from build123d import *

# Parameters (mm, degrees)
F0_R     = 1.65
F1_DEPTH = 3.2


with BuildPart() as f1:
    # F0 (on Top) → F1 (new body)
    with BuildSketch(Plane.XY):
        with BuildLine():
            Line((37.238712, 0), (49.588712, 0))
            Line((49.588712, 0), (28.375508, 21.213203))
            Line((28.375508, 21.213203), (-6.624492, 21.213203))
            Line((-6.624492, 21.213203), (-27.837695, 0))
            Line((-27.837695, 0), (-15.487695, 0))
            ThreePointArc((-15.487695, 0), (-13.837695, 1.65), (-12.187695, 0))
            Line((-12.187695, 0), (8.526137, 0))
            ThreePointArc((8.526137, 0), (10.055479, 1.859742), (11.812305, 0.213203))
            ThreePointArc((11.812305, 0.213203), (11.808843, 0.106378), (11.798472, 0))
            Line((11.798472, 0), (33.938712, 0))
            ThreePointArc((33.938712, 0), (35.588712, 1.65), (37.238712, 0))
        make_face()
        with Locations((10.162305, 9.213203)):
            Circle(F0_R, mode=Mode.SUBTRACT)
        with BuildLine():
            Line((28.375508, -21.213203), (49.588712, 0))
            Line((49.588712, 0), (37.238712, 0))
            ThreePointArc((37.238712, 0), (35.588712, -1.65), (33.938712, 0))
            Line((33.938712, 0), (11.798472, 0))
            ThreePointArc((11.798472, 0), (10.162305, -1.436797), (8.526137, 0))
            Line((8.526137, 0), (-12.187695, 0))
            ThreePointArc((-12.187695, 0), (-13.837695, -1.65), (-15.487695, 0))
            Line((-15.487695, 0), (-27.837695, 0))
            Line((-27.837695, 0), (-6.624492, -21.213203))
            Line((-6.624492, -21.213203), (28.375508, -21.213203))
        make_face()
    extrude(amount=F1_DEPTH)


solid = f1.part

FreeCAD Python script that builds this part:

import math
import FreeCAD as App
import Part
import Sketcher
from FreeCAD import Vector


def add_polygon(sketch, points):
    """Adds a closed chain of lines whose ends are joined by coincident constraints."""
    first, n = sketch.GeometryCount, len(points)
    for a, b in zip(points, points[1:] + points[:1]):
        sketch.addGeometry(Part.LineSegment(App.Vector(*a, 0), App.Vector(*b, 0)), False)
    for i in range(n):
        sketch.addConstraint(Sketcher.Constraint("Coincident", first + i, 2, first + (i + 1) % n, 1))

doc = App.newDocument("Part")
body = doc.addObject("PartDesign::Body", "Body")

sketch1 = doc.addObject("Sketcher::SketchObject", "Sketch")
body.addObject(sketch1)
sketch1.AttachmentSupport = (doc.XY_Plane, [""])
sketch1.MapMode = "FlatFace"
add_polygon(sketch1, [(49.59, 0), (28.38, 21.21), (-6.62, 21.21), (-27.84, 0), (-6.62, -21.21), (28.38, -21.21)])
sketch1.addGeometry(Part.Circle(Vector(35.59, 0, 0), Vector(0, 0, 1), 1.65), False)
sketch1.addGeometry(Part.ArcOfCircle(Part.Circle(Vector(10.16, 0.21, 0), Vector(0, 0, 1), 1.65), math.radians(-7.42), math.radians(0)), False)
sketch1.addGeometry(Part.ArcOfCircle(Part.Circle(Vector(10.16, 0.21, 0), Vector(0, 0, 1), 1.65), math.radians(-173), math.radians(-7)), False)
sketch1.addGeometry(Part.ArcOfCircle(Part.Circle(Vector(10.16, 0.21, 0), Vector(0, 0, 1), 1.65), math.radians(0), math.radians(187)), False)
sketch1.addGeometry(Part.Circle(Vector(-13.84, 0, 0), Vector(0, 0, 1), 1.65), False)
sketch1.addGeometry(Part.Circle(Vector(10.16, 9.21, 0), Vector(0, 0, 1), 1.65), False)
sketch1.addConstraint([
    Sketcher.Constraint("Coincident", 7, 1, 8, 2),
    Sketcher.Constraint("Tangent", 8, 1, 9, 2),
    Sketcher.Constraint("Coincident", 9, 1, 7, 2),
    Sketcher.Constraint("Horizontal", 1),
    Sketcher.Constraint("Horizontal", 4),
    Sketcher.Constraint("Coincident", 8, 3, 7, 3),
    Sketcher.Constraint("Equal", 6, 8),
    Sketcher.Constraint("Equal", 9, 10),
    Sketcher.Constraint("Equal", 10, 11),
    Sketcher.Constraint("Symmetric", 1, 2, 3, 2, -1),
    Sketcher.Constraint("PointOnObject", 6, 3, -1),
    Sketcher.Constraint("PointOnObject", 10, 3, -1),
    Sketcher.Constraint("PointOnObject", 2, 2, -1),
    Sketcher.Constraint("PointOnObject", 5, 2, -1),
    Sketcher.Constraint("PointOnObject", 7, 1, -1),
    Sketcher.Constraint("PointOnObject", 8, 1, -1),
    Sketcher.Constraint("Perpendicular", 0, 2),
    Sketcher.Constraint("Perpendicular", 2, 3),
    Sketcher.Constraint("Perpendicular", 3, 5),
    Sketcher.Constraint("Horizontal", 8, 3, 9, 1),
    Sketcher.Constraint("Vertical", 9, 3, 11, 3),
    Sketcher.Constraint("Diameter", 6, 3.3),
    Sketcher.Constraint("DistanceX", 1, 2, 1, 1, 35.0),
    Sketcher.Constraint("Distance", 0, 30.0),
    Sketcher.Constraint("DistanceX", 10, 3, 8, 3, 24.0),
    Sketcher.Constraint("DistanceY", 9, 3, 11, 3, 8.999999),
    Sketcher.Constraint("DistanceY", 11, 3, 0, 2, 12.0),
    Sketcher.Constraint("DistanceX", 2, 2, 10, 3, 14.0),
    Sketcher.Constraint("DistanceX", 6, 3, 5, 2, 14.0),
    Sketcher.Constraint("DistanceX", -1, 1, 0, 2, 28.375508),
])
pad1 = doc.addObject("PartDesign::Pad", "Pad")
body.addObject(pad1)
pad1.Profile = sketch1
pad1.Length = 3.2

doc.recompute()
